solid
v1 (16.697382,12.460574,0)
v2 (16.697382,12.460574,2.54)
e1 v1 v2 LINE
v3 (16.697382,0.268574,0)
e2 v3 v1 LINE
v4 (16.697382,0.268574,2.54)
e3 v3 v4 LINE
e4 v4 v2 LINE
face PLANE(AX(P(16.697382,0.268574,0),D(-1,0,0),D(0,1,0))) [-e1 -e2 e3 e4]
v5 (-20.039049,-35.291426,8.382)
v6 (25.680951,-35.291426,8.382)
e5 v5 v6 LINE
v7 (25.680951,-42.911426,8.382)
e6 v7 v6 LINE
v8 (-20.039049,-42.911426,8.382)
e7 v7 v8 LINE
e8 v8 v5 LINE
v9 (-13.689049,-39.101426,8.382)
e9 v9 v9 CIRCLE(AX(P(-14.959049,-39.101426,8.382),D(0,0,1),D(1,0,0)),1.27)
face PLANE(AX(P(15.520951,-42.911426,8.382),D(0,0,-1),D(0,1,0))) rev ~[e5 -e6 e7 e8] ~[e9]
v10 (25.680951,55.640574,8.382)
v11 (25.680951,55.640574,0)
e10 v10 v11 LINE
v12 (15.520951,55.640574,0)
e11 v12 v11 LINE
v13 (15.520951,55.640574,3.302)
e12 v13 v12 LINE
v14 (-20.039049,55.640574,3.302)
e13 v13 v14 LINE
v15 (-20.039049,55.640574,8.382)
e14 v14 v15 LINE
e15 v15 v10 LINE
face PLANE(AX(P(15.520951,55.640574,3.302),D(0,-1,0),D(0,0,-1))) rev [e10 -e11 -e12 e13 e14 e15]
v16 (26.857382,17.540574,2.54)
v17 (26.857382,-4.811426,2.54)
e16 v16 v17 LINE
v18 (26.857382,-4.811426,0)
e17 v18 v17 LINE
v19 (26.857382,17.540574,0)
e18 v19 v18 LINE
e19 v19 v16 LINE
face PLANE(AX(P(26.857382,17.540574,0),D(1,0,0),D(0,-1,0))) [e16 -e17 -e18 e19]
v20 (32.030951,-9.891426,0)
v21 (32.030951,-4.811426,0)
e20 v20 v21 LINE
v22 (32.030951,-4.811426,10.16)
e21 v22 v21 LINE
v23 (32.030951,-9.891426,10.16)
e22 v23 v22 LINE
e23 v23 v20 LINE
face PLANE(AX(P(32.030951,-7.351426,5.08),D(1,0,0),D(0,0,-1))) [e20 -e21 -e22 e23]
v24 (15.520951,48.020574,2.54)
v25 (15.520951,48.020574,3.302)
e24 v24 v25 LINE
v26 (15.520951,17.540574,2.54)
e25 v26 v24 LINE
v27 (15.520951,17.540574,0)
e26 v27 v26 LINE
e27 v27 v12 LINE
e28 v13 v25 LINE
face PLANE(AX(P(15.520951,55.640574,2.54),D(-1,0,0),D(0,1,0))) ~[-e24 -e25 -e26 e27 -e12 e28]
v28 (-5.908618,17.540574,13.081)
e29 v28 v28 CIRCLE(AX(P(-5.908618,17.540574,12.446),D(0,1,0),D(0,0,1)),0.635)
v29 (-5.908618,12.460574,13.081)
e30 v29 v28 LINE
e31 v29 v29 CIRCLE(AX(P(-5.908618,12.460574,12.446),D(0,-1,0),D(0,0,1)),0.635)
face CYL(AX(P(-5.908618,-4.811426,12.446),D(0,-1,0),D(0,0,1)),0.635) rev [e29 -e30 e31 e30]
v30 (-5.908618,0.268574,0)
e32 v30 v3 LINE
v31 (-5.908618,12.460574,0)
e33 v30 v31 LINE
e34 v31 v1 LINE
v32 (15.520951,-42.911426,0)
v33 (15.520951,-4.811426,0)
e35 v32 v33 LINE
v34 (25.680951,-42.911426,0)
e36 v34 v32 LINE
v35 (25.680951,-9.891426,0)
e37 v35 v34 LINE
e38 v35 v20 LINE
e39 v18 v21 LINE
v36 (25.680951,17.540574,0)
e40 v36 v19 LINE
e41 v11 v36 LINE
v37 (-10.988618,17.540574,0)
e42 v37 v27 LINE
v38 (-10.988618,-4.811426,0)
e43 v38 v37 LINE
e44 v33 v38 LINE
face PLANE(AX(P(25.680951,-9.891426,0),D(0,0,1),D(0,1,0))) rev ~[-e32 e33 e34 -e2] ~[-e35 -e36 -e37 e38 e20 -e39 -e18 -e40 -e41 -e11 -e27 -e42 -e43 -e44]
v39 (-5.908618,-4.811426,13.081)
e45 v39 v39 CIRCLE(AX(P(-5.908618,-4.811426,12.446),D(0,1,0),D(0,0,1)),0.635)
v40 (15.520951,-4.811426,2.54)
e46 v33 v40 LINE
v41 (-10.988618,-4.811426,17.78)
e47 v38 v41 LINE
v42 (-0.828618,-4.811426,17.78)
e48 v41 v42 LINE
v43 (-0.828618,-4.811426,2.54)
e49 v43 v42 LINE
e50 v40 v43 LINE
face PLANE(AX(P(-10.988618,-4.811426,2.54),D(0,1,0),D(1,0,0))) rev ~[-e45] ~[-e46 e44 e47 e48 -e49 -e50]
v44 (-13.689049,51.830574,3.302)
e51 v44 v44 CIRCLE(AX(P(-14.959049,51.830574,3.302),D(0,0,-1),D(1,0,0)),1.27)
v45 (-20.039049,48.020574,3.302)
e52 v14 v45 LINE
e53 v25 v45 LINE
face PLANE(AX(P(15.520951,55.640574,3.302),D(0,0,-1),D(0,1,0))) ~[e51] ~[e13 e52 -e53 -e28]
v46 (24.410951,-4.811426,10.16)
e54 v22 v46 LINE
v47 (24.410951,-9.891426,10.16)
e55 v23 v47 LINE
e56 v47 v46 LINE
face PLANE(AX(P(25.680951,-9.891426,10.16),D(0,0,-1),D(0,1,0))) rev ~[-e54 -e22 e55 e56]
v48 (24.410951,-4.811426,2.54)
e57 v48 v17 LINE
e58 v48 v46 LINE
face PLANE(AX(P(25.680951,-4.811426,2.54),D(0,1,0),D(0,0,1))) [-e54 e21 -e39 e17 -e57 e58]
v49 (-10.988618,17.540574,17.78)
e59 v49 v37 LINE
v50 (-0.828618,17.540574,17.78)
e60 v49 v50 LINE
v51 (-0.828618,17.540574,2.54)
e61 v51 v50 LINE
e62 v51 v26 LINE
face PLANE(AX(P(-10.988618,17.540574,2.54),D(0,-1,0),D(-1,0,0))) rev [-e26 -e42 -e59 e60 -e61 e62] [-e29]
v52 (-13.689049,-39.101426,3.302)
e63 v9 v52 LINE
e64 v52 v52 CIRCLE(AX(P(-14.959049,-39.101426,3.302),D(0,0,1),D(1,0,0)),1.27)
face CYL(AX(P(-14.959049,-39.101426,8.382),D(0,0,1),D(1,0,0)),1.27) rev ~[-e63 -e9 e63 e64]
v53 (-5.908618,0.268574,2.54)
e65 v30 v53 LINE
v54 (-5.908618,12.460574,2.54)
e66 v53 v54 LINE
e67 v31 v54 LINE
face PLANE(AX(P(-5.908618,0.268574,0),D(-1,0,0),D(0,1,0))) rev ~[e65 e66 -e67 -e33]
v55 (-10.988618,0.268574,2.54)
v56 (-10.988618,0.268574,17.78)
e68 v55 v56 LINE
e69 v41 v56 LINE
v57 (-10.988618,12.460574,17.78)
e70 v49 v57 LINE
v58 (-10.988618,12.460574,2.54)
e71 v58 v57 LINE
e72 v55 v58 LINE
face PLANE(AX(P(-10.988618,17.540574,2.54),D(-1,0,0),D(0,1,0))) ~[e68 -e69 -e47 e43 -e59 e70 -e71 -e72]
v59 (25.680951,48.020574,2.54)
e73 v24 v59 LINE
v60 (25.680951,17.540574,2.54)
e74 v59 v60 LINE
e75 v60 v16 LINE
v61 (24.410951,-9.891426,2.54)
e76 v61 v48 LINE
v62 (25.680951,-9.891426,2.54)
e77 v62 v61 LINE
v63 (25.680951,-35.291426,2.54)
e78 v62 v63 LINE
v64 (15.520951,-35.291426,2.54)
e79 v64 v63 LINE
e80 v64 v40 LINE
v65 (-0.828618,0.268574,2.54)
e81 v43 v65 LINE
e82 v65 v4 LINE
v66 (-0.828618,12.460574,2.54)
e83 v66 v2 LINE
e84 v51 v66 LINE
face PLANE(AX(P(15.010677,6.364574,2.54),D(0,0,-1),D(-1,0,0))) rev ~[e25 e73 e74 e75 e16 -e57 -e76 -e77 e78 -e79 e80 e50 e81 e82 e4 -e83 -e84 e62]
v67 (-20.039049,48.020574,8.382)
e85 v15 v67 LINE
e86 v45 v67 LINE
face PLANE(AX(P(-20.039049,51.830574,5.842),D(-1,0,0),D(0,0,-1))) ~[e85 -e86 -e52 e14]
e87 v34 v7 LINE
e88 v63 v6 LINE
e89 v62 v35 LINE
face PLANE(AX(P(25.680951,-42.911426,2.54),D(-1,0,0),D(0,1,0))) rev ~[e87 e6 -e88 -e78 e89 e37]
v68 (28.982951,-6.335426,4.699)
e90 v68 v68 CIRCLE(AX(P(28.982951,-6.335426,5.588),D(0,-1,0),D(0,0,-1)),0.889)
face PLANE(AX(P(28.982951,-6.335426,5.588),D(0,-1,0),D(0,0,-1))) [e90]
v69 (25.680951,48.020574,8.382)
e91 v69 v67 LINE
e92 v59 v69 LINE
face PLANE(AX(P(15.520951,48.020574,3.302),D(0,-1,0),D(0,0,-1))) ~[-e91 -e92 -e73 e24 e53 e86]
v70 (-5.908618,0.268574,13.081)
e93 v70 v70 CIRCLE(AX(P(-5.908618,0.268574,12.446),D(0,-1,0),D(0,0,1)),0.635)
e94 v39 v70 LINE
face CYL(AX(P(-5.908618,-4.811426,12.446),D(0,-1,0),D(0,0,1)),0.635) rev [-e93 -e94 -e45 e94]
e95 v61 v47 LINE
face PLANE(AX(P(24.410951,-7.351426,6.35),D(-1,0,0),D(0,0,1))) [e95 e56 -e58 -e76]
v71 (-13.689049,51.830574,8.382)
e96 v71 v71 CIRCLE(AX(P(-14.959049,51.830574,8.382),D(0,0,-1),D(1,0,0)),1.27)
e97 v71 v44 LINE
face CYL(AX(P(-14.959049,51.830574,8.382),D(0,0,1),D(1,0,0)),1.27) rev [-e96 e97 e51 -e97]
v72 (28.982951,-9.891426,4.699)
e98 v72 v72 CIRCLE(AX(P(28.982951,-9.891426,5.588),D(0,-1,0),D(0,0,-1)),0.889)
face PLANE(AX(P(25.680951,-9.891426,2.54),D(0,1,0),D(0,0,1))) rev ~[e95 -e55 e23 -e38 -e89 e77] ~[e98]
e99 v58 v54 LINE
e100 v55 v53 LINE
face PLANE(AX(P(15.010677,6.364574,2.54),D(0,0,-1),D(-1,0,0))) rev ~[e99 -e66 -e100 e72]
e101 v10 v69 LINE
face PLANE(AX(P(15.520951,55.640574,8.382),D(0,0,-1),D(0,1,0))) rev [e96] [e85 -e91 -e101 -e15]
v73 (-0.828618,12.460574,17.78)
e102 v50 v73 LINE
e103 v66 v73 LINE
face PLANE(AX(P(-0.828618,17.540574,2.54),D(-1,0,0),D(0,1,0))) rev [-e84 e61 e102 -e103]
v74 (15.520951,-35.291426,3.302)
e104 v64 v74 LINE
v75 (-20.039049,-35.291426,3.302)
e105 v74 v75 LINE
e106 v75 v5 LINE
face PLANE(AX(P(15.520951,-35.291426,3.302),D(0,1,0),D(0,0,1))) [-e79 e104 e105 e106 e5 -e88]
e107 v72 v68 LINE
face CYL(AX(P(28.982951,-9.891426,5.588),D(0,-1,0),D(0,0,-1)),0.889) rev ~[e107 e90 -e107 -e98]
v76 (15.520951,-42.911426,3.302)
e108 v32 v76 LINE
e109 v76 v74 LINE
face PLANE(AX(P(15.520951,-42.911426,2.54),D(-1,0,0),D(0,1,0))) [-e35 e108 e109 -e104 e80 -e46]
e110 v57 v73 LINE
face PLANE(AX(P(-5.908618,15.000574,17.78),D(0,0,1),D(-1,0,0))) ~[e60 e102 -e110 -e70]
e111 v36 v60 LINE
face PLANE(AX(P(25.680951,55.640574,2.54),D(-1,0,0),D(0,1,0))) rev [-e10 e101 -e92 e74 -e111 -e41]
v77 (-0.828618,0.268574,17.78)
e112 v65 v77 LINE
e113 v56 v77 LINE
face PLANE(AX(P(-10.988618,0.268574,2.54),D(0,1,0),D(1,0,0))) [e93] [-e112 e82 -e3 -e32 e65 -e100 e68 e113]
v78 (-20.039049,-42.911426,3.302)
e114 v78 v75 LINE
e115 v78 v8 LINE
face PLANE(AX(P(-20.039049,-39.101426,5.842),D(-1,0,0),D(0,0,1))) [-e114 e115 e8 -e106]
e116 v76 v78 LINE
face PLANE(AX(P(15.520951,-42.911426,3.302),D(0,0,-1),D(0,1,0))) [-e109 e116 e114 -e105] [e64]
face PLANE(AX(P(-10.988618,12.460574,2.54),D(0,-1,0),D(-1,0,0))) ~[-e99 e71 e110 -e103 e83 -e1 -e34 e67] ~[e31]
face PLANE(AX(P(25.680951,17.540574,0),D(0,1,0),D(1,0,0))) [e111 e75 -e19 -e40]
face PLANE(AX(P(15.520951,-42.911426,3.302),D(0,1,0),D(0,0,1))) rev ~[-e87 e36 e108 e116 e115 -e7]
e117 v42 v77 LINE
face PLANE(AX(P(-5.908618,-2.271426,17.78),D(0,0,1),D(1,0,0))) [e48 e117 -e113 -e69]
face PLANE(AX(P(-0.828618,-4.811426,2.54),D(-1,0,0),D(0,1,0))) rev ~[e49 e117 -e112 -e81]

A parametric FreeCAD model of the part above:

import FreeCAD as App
import Part
import Sketcher
from FreeCAD import Vector
Q = App.Units.Quantity


def add_polygon(sketch, points):
    """Adds a closed chain of lines whose ends are joined by coincident constraints."""
    first, n = sketch.GeometryCount, len(points)
    for a, b in zip(points, points[1:] + points[:1]):
        sketch.addGeometry(Part.LineSegment(App.Vector(*a, 0), App.Vector(*b, 0)), False)
    for i in range(n):
        sketch.addConstraint(Sketcher.Constraint("Coincident", first + i, 2, first + (i + 1) % n, 1))

doc = App.newDocument("Part")
body = doc.addObject("PartDesign::Body", "Body")

sketch1 = body.newObject("Sketcher::SketchObject", "Sketch")
sketch1.AttachmentSupport = (doc.getObject("XY_Plane"), [""])
sketch1.MapMode = "FlatFace"
add_polygon(sketch1, [(26.9, -4.8), (26.9, 17.5), (25.7, 17.5), (25.7, 55.6), (15.5, 55.6), (15.5, 17.5), (-11, 17.5), (-11, -4.8), (15.5, -4.8), (15.5, -42.9), (25.7, -42.9), (25.7, -4.8)])
add_polygon(sketch1, [(-5.9, 0.3), (-5.9, 12.5), (16.7, 12.5), (16.7, 0.3)])
sketch1.addConstraint(Sketcher.Constraint("Vertical", 0))
sketch1.addConstraint(Sketcher.Constraint("Horizontal", 1))
sketch1.addConstraint(Sketcher.Constraint("Vertical", 2))
sketch1.addConstraint(Sketcher.Constraint("Horizontal", 3))
sketch1.addConstraint(Sketcher.Constraint("Vertical", 4))
sketch1.addConstraint(Sketcher.Constraint("Horizontal", 5))
sketch1.addConstraint(Sketcher.Constraint("Vertical", 6))
sketch1.addConstraint(Sketcher.Constraint("Horizontal", 7))
sketch1.addConstraint(Sketcher.Constraint("Vertical", 8))
sketch1.addConstraint(Sketcher.Constraint("Horizontal", 9))
sketch1.addConstraint(Sketcher.Constraint("Vertical", 10))
sketch1.addConstraint(Sketcher.Constraint("Horizontal", 11))
sketch1.addConstraint(Sketcher.Constraint("Vertical", 12))
sketch1.addConstraint(Sketcher.Constraint("Horizontal", 13))
sketch1.addConstraint(Sketcher.Constraint("Vertical", 14))
sketch1.addConstraint(Sketcher.Constraint("Horizontal", 15))
sketch1.addConstraint(Sketcher.Constraint("Horizontal", 1, 2, 4, 2))
sketch1.addConstraint(Sketcher.Constraint("Horizontal", 7, 2, 10, 2))
sketch1.addConstraint(Sketcher.Constraint("Vertical", 4, 2, 7, 2))
sketch1.addConstraint(Sketcher.Constraint("Vertical", 2, 2, 9, 2))
sketch1.addConstraint(Sketcher.Constraint("Equal", 4, 8))
sketch1.addConstraint(Sketcher.Constraint("DistanceX", 3, 2, 3, 1, Q("0.4 in")))
sketch1.addConstraint(Sketcher.Constraint("DistanceY", 2, 1, 2, 2, Q("1.5 in")))
sketch1.addConstraint(Sketcher.Constraint("DistanceX", 13, 1, 13, 2, Q("0.89 in")))
sketch1.addConstraint(Sketcher.Constraint("DistanceY", 0, 1, 0, 2, Q("0.88 in")))
sketch1.addConstraint(Sketcher.Constraint("DistanceY", 12, 1, 12, 2, Q("0.48 in")))
sketch1.addConstraint(Sketcher.Constraint("DistanceX", 5, 2, 12, 2, Q("0.2 in")))
sketch1.addConstraint(Sketcher.Constraint("DistanceY", 12, 2, 5, 2, Q("0.2 in")))
sketch1.addConstraint(Sketcher.Constraint("DistanceX", 13, 2, 0, 2, Q("0.4 in")))
sketch1.addConstraint(Sketcher.Constraint("DistanceX", 1, 2, 1, 1, Q("1.176431 mm")))
sketch1.addConstraint(Sketcher.Constraint("DistanceX", -1, 1, 0, 2, Q("26.857382 mm")))
sketch1.addConstraint(Sketcher.Constraint("DistanceY", -1, 1, 0, 2, Q("17.540574 mm")))
pad1 = body.newObject("PartDesign::Pad", "Pad")
pad1.Profile = sketch1
pad1.Length = Q("0.1 in")

sketch2 = body.newObject("Sketcher::SketchObject", "Sketch001")
sketch2.AttachmentSupport = (doc.getObject("XY_Plane"), [""])
sketch2.MapMode = "FlatFace"
sketch2.AttachmentOffset = App.Placement(Vector(0, 0, 0.1 * 25.4), App.Rotation())
add_polygon(sketch2, [(-11, 0), (-11, -5), (-1, -5), (-1, 0)])
sketch2.addConstraint(Sketcher.Constraint("Vertical", 0))
sketch2.addConstraint(Sketcher.Constraint("Horizontal", 1))
sketch2.addConstraint(Sketcher.Constraint("Vertical", 2))
sketch2.addConstraint(Sketcher.Constraint("Horizontal", 3))
sketch2.addConstraint(Sketcher.Constraint("DistanceX", 1, 1, 1, 2, Q("0.4 in")))
sketch2.addConstraint(Sketcher.Constraint("DistanceY", 0, 2, 0, 1, Q("0.2 in")))
sketch2.addConstraint(Sketcher.Constraint("DistanceX", 0, 2, -1, 1, Q("10.988618 mm")))
sketch2.addConstraint(Sketcher.Constraint("DistanceY", 0, 2, -1, 1, Q("4.811426 mm")))
pad2 = body.newObject("PartDesign::Pad", "Pad001")
pad2.Profile = sketch2
pad2.Length = Q("0.6 in")

sketch3 = body.newObject("Sketcher::SketchObject", "Sketch002")
sketch3.AttachmentSupport = (doc.getObject("XY_Plane"), [""])
sketch3.MapMode = "FlatFace"
sketch3.AttachmentOffset = App.Placement(Vector(0, 0, 0.1 * 25.4), App.Rotation())
add_polygon(sketch3, [(16, -35), (16, -43), (26, -43), (26, -35)])
sketch3.addConstraint(Sketcher.Constraint("Vertical", 0))
sketch3.addConstraint(Sketcher.Constraint("Horizontal", 1))
sketch3.addConstraint(Sketcher.Constraint("Vertical", 2))
sketch3.addConstraint(Sketcher.Constraint("Horizontal", 3))
sketch3.addConstraint(Sketcher.Constraint("DistanceX", 1, 1, 1, 2, Q("0.4 in")))
sketch3.addConstraint(Sketcher.Constraint("DistanceY", 0, 2, 0, 1, Q("0.3 in")))
sketch3.addConstraint(Sketcher.Constraint("DistanceX", -1, 1, 0, 2, Q("15.520951 mm")))
sketch3.addConstraint(Sketcher.Constraint("DistanceY", 0, 2, -1, 1, Q("42.911426 mm")))
pad3 = body.newObject("PartDesign::Pad", "Pad002")
pad3.Profile = sketch3
pad3.Length = Q("0.23 in")

sketch4 = body.newObject("Sketcher::SketchObject", "Sketch003")
sketch4.AttachmentSupport = (doc.getObject("YZ_Plane"), [""])
sketch4.MapMode = "FlatFace"
sketch4.AttachmentOffset = App.Placement(Vector(0, 0, 15.520951), App.Rotation())
add_polygon(sketch4, [(-35, 3), (-43, 3), (-43, 8), (-35, 8)])
sketch4.addConstraint(Sketcher.Constraint("Horizontal", 0))
sketch4.addConstraint(Sketcher.Constraint("Vertical", 1))
sketch4.addConstraint(Sketcher.Constraint("Horizontal", 2))
sketch4.addConstraint(Sketcher.Constraint("Vertical", 3))
sketch4.addConstraint(Sketcher.Constraint("DistanceX", 0, 2, 0, 1, Q("0.3 in")))
sketch4.addConstraint(Sketcher.Constraint("DistanceY", 1, 1, 1, 2, Q("0.2 in")))
sketch4.addConstraint(Sketcher.Constraint("DistanceY", -1, 1, 0, 2, Q("0.13 in")))
sketch4.addConstraint(Sketcher.Constraint("DistanceX", 0, 2, -1, 1, Q("42.911426 mm")))
pad4 = body.newObject("PartDesign::Pad", "Pad003")
pad4.Profile = sketch4
pad4.Length = Q("1.4 in")
pad4.Reversed = True

sketch5 = body.newObject("Sketcher::SketchObject", "Sketch004")
sketch5.AttachmentSupport = (doc.getObject("XY_Plane"), [""])
sketch5.MapMode = "FlatFace"
sketch5.AttachmentOffset = App.Placement(Vector(0, 0, 0.33 * 25.4), App.Rotation())
sketch5.addGeometry(Part.Circle(Vector(-15, -39.1, 0), Vector(0, 0, 1), 1.3), False)
sketch5.addConstraint(Sketcher.Constraint("Diameter", 0, Q("0.1 in")))
sketch5.addConstraint(Sketcher.Constraint("DistanceX", 0, 3, -1, 1, Q("14.959049 mm")))
sketch5.addConstraint(Sketcher.Constraint("DistanceY", 0, 3, -1, 1, Q("39.101426 mm")))
pocket1 = body.newObject("PartDesign::Pocket", "Pocket")
pocket1.Profile = sketch5
pocket1.Length = Q("0.2 in")
doc.recompute()

datumplane = body.newObject("PartDesign::Plane", "DatumPlane")
datumplane.AttachmentSupport = (doc.getObject("XZ_Plane"), [""])
datumplane.MapMode = "FlatFace"
datumplane.AttachmentOffset = App.Placement(Vector(0, 0, -6.364574), App.Rotation())
mirrored = body.newObject("PartDesign::Mirrored", "Mirrored")
mirrored.Originals = [pad2, pad3, pad4, pocket1]
mirrored.MirrorPlane = (datumplane, [""])
body.Tip = mirrored

sketch6 = body.newObject("Sketcher::SketchObject", "Sketch005")
sketch6.AttachmentSupport = (doc.getObject("XZ_Plane"), [""])
sketch6.MapMode = "FlatFace"
sketch6.AttachmentOffset = App.Placement(Vector(0, 0, 4.811426), App.Rotation())
sketch6.addGeometry(Part.Circle(Vector(-5.9, 12.4, 0), Vector(0, 0, 1), 0.6), False)
sketch6.addConstraint(Sketcher.Constraint("Diameter", 0, Q("0.05 in")))
sketch6.addConstraint(Sketcher.Constraint("DistanceY", -1, 1, 0, 3, Q("0.49 in")))
sketch6.addConstraint(Sketcher.Constraint("DistanceX", 0, 3, -1, 1, Q("5.908618 mm")))
pocket2 = body.newObject("PartDesign::Pocket", "Pocket001")
pocket2.Profile = sketch6
pocket2.Length = Q("0.88 in")

sketch7 = body.newObject("Sketcher::SketchObject", "Sketch006")
sketch7.AttachmentSupport = (doc.getObject("YZ_Plane"), [""])
sketch7.MapMode = "FlatFace"
sketch7.AttachmentOffset = App.Placement(Vector(0, 0, 25.680951), App.Rotation())
add_polygon(sketch7, [(-5, 10), (-10, 10), (-10, 0), (-5, 0)])
sketch7.addConstraint(Sketcher.Constraint("Horizontal", 0))
sketch7.addConstraint(Sketcher.Constraint("Vertical", 1))
sketch7.addConstraint(Sketcher.Constraint("Horizontal", 2))
sketch7.addConstraint(Sketcher.Constraint("Vertical", 3))
sketch7.addConstraint(Sketcher.Constraint("PointOnObject", 1, 2, -1))
sketch7.addConstraint(Sketcher.Constraint("DistanceX", 0, 2, 0, 1, Q("0.2 in")))
sketch7.addConstraint(Sketcher.Constraint("DistanceY", 1, 2, 1, 1, Q("0.4 in")))
sketch7.addConstraint(Sketcher.Constraint("DistanceX", 0, 2, -1, 1, Q("9.891426 mm")))
pad5 = body.newObject("PartDesign::Pad", "Pad004")
pad5.Profile = sketch7
pad5.Length = Q("0.25 in")

sketch8 = body.newObject("Sketcher::SketchObject", "Sketch007")
sketch8.AttachmentSupport = (doc.getObject("XZ_Plane"), [""])
sketch8.MapMode = "FlatFace"
sketch8.AttachmentOffset = App.Placement(Vector(0, 0, 9.891426), App.Rotation())
sketch8.addGeometry(Part.Circle(Vector(29, 5.6, 0), Vector(0, 0, 1), 0.9), False)
sketch8.addConstraint(Sketcher.Constraint("Diameter", 0, Q("0.07 in")))
sketch8.addConstraint(Sketcher.Constraint("DistanceY", -1, 1, 0, 3, Q("0.22 in")))
sketch8.addConstraint(Sketcher.Constraint("DistanceX", -1, 1, 0, 3, Q("28.982951 mm")))
pocket3 = body.newObject("PartDesign::Pocket", "Pocket002")
pocket3.Profile = sketch8
pocket3.Length = Q("0.14 in")

sketch9 = body.newObject("Sketcher::SketchObject", "Sketch008")
sketch9.AttachmentSupport = (doc.getObject("YZ_Plane"), [""])
sketch9.MapMode = "FlatFace"
sketch9.AttachmentOffset = App.Placement(Vector(0, 0, 25.680951), App.Rotation())
add_polygon(sketch9, [(-5, 3), (-10, 3), (-10, 10), (-5, 10)])
sketch9.addConstraint(Sketcher.Constraint("Horizontal", 0))
sketch9.addConstraint(Sketcher.Constraint("Vertical", 1))
sketch9.addConstraint(Sketcher.Constraint("Horizontal", 2))
sketch9.addConstraint(Sketcher.Constraint("Vertical", 3))
sketch9.addConstraint(Sketcher.Constraint("DistanceX", 0, 2, 0, 1, Q("0.2 in")))
sketch9.addConstraint(Sketcher.Constraint("DistanceY", 1, 1, 1, 2, Q("0.3 in")))
sketch9.addConstraint(Sketcher.Constraint("DistanceY", -1, 1, 0, 2, Q("0.1 in")))
sketch9.addConstraint(Sketcher.Constraint("DistanceX", 0, 2, -1, 1, Q("9.891426 mm")))
pad6 = body.newObject("PartDesign::Pad", "Pad005")
pad6.Profile = sketch9
pad6.Length = Q("0.05 in")
pad6.Reversed = True

doc.recompute()
